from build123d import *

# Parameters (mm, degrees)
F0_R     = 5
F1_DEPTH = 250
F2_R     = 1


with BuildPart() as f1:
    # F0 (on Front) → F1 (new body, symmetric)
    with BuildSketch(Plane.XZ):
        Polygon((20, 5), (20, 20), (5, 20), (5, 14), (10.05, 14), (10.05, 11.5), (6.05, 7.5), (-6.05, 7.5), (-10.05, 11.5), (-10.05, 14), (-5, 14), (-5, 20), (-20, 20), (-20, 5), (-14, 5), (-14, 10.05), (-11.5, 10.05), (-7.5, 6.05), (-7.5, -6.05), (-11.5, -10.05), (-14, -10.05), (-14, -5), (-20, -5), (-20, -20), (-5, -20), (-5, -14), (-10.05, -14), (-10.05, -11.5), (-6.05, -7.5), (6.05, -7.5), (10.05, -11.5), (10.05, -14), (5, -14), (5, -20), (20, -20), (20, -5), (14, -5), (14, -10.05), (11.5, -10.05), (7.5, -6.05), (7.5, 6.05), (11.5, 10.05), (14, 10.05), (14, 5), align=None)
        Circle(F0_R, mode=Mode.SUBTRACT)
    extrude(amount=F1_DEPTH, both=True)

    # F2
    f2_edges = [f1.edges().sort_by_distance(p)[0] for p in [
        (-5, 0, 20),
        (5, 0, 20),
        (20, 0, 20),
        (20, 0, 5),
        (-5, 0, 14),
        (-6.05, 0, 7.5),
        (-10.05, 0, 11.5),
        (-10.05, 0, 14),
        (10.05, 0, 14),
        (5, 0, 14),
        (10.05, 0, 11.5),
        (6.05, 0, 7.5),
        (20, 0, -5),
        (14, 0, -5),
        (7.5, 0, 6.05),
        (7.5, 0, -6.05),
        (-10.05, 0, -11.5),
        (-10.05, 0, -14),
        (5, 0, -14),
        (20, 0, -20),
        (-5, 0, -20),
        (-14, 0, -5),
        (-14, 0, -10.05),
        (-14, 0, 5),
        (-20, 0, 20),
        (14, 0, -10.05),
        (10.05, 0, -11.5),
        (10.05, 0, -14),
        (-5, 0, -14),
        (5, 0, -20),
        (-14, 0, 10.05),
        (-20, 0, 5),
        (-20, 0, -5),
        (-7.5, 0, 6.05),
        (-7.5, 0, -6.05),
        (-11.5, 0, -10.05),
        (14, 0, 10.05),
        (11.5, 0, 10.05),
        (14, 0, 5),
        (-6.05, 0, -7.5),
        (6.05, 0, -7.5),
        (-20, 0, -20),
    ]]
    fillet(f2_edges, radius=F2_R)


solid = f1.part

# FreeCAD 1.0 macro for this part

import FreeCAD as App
import Part
import Sketcher
from FreeCAD import Vector
Q = App.Units.Quantity


def edges_at(feature, points):
    """Names of the edges that pass closest to the given points."""
    edges = feature.Shape.Edges
    near = lambda p: min(range(len(edges)), key=lambda i: edges[i].distToShape(Part.Vertex(*p))[0])
    return sorted({f"Edge{near(p) + 1}" for p in points})

doc = App.newDocument("Part")
body = doc.addObject("PartDesign::Body", "Body")

sketch1 = body.newObject("Sketcher::SketchObject", "Sketch")
sketch1.AttachmentSupport = (doc.getObject("XZ_Plane"), [""])
sketch1.MapMode = "FlatFace"
sketch1.addGeometry([
    Part.LineSegment(Vector(20, 5, 0), Vector(20, 20, 0)),
    Part.LineSegment(Vector(20, 20, 0), Vector(5, 20, 0)),
    Part.LineSegment(Vector(5, 20, 0), Vector(5, 14, 0)),
    Part.LineSegment(Vector(5, 14, 0), Vector(10.1, 14, 0)),
    Part.LineSegment(Vector(10.1, 14, 0), Vector(10.1, 11.5, 0)),
    Part.LineSegment(Vector(10.1, 11.5, 0), Vector(6, 7.5, 0)),
    Part.LineSegment(Vector(6, 7.5, 0), Vector(-6, 7.5, 0)),
    Part.LineSegment(Vector(-6, 7.5, 0), Vector(-10.1, 11.5, 0)),
    Part.LineSegment(Vector(-10.1, 11.5, 0), Vector(-10.1, 14, 0)),
    Part.LineSegment(Vector(-10.1, 14, 0), Vector(-5, 14, 0)),
    Part.LineSegment(Vector(-5, 14, 0), Vector(-5, 20, 0)),
    Part.LineSegment(Vector(-5, 20, 0), Vector(-20, 20, 0)),
    Part.LineSegment(Vector(-20, 20, 0), Vector(-20, 5, 0)),
    Part.LineSegment(Vector(-20, 5, 0), Vector(-14, 5, 0)),
    Part.LineSegment(Vector(-14, 5, 0), Vector(-14, 10.1, 0)),
    Part.LineSegment(Vector(-14, 10.1, 0), Vector(-11.5, 10.1, 0)),
    Part.LineSegment(Vector(-11.5, 10.1, 0), Vector(-7.5, 6, 0)),
    Part.LineSegment(Vector(-7.5, 6, 0), Vector(-7.5, -6, 0)),
    Part.LineSegment(Vector(-7.5, -6, 0), Vector(-11.5, -10.1, 0)),
    Part.LineSegment(Vector(-11.5, -10.1, 0), Vector(-14, -10.1, 0)),
    Part.LineSegment(Vector(-14, -10.1, 0), Vector(-14, -5, 0)),
    Part.LineSegment(Vector(-14, -5, 0), Vector(-20, -5, 0)),
    Part.LineSegment(Vector(-20, -5, 0), Vector(-20, -20, 0)),
    Part.LineSegment(Vector(-20, -20, 0), Vector(-5, -20, 0)),
    Part.LineSegment(Vector(-5, -20, 0), Vector(-5, -14, 0)),
    Part.LineSegment(Vector(-5, -14, 0), Vector(-10.1, -14, 0)),
    Part.LineSegment(Vector(-10.1, -14, 0), Vector(-10.1, -11.5, 0)),
    Part.LineSegment(Vector(-10.1, -11.5, 0), Vector(-6, -7.5, 0)),
    Part.LineSegment(Vector(-6, -7.5, 0), Vector(6, -7.5, 0)),
    Part.LineSegment(Vector(6, -7.5, 0), Vector(10.1, -11.5, 0)),
    Part.LineSegment(Vector(10.1, -11.5, 0), Vector(10.1, -14, 0)),
    Part.LineSegment(Vector(10.1, -14, 0), Vector(5, -14, 0)),
    Part.LineSegment(Vector(5, -14, 0), Vector(5, -20, 0)),
    Part.LineSegment(Vector(5, -20, 0), Vector(20, -20, 0)),
    Part.LineSegment(Vector(20, -20, 0), Vector(20, -5, 0)),
    Part.LineSegment(Vector(20, -5, 0), Vector(14, -5, 0)),
    Part.LineSegment(Vector(14, -5, 0), Vector(14, -10.1, 0)),
    Part.LineSegment(Vector(14, -10.1, 0), Vector(11.5, -10.1, 0)),
    Part.LineSegment(Vector(11.5, -10.1, 0), Vector(7.5, -6, 0)),
    Part.LineSegment(Vector(7.5, -6, 0), Vector(7.5, 6, 0)),
    Part.LineSegment(Vector(7.5, 6, 0), Vector(11.5, 10.1, 0)),
    Part.LineSegment(Vector(11.5, 10.1, 0), Vector(14, 10.1, 0)),
    Part.LineSegment(Vector(14, 10.1, 0), Vector(14, 5, 0)),
    Part.LineSegment(Vector(14, 5, 0), Vector(20, 5, 0)),
    Part.Circle(Vector(0, 0, 0), Vector(0, 0, 1), 5),
], False)
sketch1.addConstraint([
    Sketcher.Constraint("Coincident", 0, 2, 1, 1),
    Sketcher.Constraint("Coincident", 1, 2, 2, 1),
    Sketcher.Constraint("Coincident", 2, 2, 3, 1),
    Sketcher.Constraint("Coincident", 3, 2, 4, 1),
    Sketcher.Constraint("Coincident", 4, 2, 5, 1),
    Sketcher.Constraint("Coincident", 5, 2, 6, 1),
    Sketcher.Constraint("Coincident", 6, 2, 7, 1),
    Sketcher.Constraint("Coincident", 7, 2, 8, 1),
    Sketcher.Constraint("Coincident", 8, 2, 9, 1),
    Sketcher.Constraint("Coincident", 9, 2, 10, 1),
    Sketcher.Constraint("Coincident", 10, 2, 11, 1),
    Sketcher.Constraint("Coincident", 11, 2, 12, 1),
    Sketcher.Constraint("Coincident", 12, 2, 13, 1),
    Sketcher.Constraint("Coincident", 13, 2, 14, 1),
    Sketcher.Constraint("Coincident", 14, 2, 15, 1),
    Sketcher.Constraint("Coincident", 15, 2, 16, 1),
    Sketcher.Constraint("Coincident", 16, 2, 17, 1),
    Sketcher.Constraint("Coincident", 17, 2, 18, 1),
    Sketcher.Constraint("Coincident", 18, 2, 19, 1),
    Sketcher.Constraint("Coincident", 19, 2, 20, 1),
    Sketcher.Constraint("Coincident", 20, 2, 21, 1),
    Sketcher.Constraint("Coincident", 21, 2, 22, 1),
    Sketcher.Constraint("Coincident", 22, 2, 23, 1),
    Sketcher.Constraint("Coincident", 23, 2, 24, 1),
    Sketcher.Constraint("Coincident", 24, 2, 25, 1),
    Sketcher.Constraint("Coincident", 25, 2, 26, 1),
    Sketcher.Constraint("Coincident", 26, 2, 27, 1),
    Sketcher.Constraint("Coincident", 27, 2, 28, 1),
    Sketcher.Constraint("Coincident", 28, 2, 29, 1),
    Sketcher.Constraint("Coincident", 29, 2, 30, 1),
    Sketcher.Constraint("Coincident", 30, 2, 31, 1),
    Sketcher.Constraint("Coincident", 31, 2, 32, 1),
    Sketcher.Constraint("Coincident", 32, 2, 33, 1),
    Sketcher.Constraint("Coincident", 33, 2, 34, 1),
    Sketcher.Constraint("Coincident", 34, 2, 35, 1),
    Sketcher.Constraint("Coincident", 35, 2, 36, 1),
    Sketcher.Constraint("Coincident", 36, 2, 37, 1),
    Sketcher.Constraint("Coincident", 37, 2, 38, 1),
    Sketcher.Constraint("Coincident", 38, 2, 39, 1),
    Sketcher.Constraint("Coincident", 39, 2, 40, 1),
    Sketcher.Constraint("Coincident", 40, 2, 41, 1),
    Sketcher.Constraint("Coincident", 41, 2, 42, 1),
    Sketcher.Constraint("Coincident", 42, 2, 43, 1),
    Sketcher.Constraint("Coincident", 43, 2, 0, 1),
    Sketcher.Constraint("Vertical", 0),
    Sketcher.Constraint("Horizontal", 1),
    Sketcher.Constraint("Vertical", 2),
    Sketcher.Constraint("Horizontal", 3),
    Sketcher.Constraint("Vertical", 4),
    Sketcher.Constraint("Horizontal", 6),
    Sketcher.Constraint("Vertical", 8),
    Sketcher.Constraint("Horizontal", 9),
    Sketcher.Constraint("Vertical", 10),
    Sketcher.Constraint("Horizontal", 11),
    Sketcher.Constraint("Vertical", 12),
    Sketcher.Constraint("Horizontal", 13),
    Sketcher.Constraint("Vertical", 14),
    Sketcher.Constraint("Horizontal", 15),
    Sketcher.Constraint("Vertical", 17),
    Sketcher.Constraint("Horizontal", 19),
    Sketcher.Constraint("Vertical", 20),
    Sketcher.Constraint("Horizontal", 21),
    Sketcher.Constraint("Vertical", 22),
    Sketcher.Constraint("Horizontal", 23),
    Sketcher.Constraint("Vertical", 24),
    Sketcher.Constraint("Horizontal", 25),
    Sketcher.Constraint("Vertical", 26),
    Sketcher.Constraint("Horizontal", 28),
    Sketcher.Constraint("Vertical", 30),
    Sketcher.Constraint("Horizontal", 31),
    Sketcher.Constraint("Vertical", 32),
    Sketcher.Constraint("Horizontal", 33),
    Sketcher.Constraint("Vertical", 34),
    Sketcher.Constraint("Horizontal", 35),
    Sketcher.Constraint("Vertical", 36),
    Sketcher.Constraint("Horizontal", 37),
    Sketcher.Constraint("Vertical", 39),
    Sketcher.Constraint("Horizontal", 41),
    Sketcher.Constraint("Vertical", 42),
    Sketcher.Constraint("Horizontal", 43),
    Sketcher.Constraint("Coincident", 44, 3, -1, 1),
    Sketcher.Constraint("Symmetric", 0, 2, 22, 2, -1, 1),
    Sketcher.Constraint("Symmetric", 2, 2, 24, 2, -1, 1),
    Sketcher.Constraint("Symmetric", 4, 2, 26, 2, -1, 1),
    Sketcher.Constraint("Symmetric", 5, 2, 27, 2, -1, 1),
    Sketcher.Constraint("Symmetric", 7, 2, 29, 2, -1, 1),
    Sketcher.Constraint("Symmetric", 9, 2, 31, 2, -1, 1),
    Sketcher.Constraint("Symmetric", 11, 2, 33, 2, -1, 1),
    Sketcher.Constraint("Symmetric", 13, 2, 35, 2, -1, 1),
    Sketcher.Constraint("Symmetric", 15, 2, 37, 2, -1, 1),
    Sketcher.Constraint("Symmetric", 16, 2, 38, 2, -1, 1),
    Sketcher.Constraint("Symmetric", 18, 2, 40, 2, -1, 1),
    Sketcher.Constraint("Symmetric", 20, 2, 42, 2, -1, 1),
    Sketcher.Constraint("Symmetric", 4, 2, 7, 2, -2),
    Sketcher.Constraint("Symmetric", 2, 2, 9, 2, -2),
    Sketcher.Constraint("Symmetric", 0, 2, 11, 2, -2),
    Sketcher.Constraint("Symmetric", 20, 2, 35, 2, -2),
    Sketcher.Constraint("Symmetric", 18, 2, 37, 2, -2),
    Sketcher.Constraint("Perpendicular", 5, 7),
    Sketcher.Constraint("Parallel", 7, 16),
    Sketcher.Constraint("Perpendicular", 16, 18),
    Sketcher.Constraint("Perpendicular", 27, 29),
    Sketcher.Constraint("Perpendicular", 38, 40),
    Sketcher.Constraint("Horizontal", 17, 2, 38, 2),
    Sketcher.Constraint("Equal", 33, 0),
    Sketcher.Constraint("Equal", 43, 2),
    Sketcher.Constraint("Equal", 41, 4),
    Sketcher.Constraint("Equal", 31, 14),
    Sketcher.Constraint("Equal", 28, 17),
    Sketcher.Constraint("Equal", 7, 16),
    Sketcher.Constraint("Diameter", 44, Q("10 mm")),
    Sketcher.Constraint("DistanceX", 1, 2, 1, 1, Q("15 mm")),
    Sketcher.Constraint("DistanceX", 13, 1, 13, 2, Q("6 mm")),
    Sketcher.Constraint("DistanceX", 6, 2, 6, 1, Q("12.1 mm")),
    Sketcher.Constraint("DistanceX", 15, 1, 15, 2, Q("2.5 mm")),
    Sketcher.Constraint("DistanceX", -1, 1, 0, 2, Q("20 mm")),
    Sketcher.Constraint("DistanceX", 5, 2, 4, 2, Q("4 mm")),
])
pad1 = body.newObject("PartDesign::Pad", "Pad")
pad1.Profile = sketch1
pad1.Length = 500
pad1.Midplane = True
doc.recompute()

fillet = body.newObject("PartDesign::Fillet", "Fillet")
fillet.Base = (pad1, edges_at(pad1, [
    (-5, 0, 20),
    (5, 0, 20),
    (20, 0, 20),
    (20, 0, 5),
    (-5, 0, 14),
    (-6.05, 0, 7.5),
    (-10.05, 0, 11.5),
    (-10.05, 0, 14),
    (10.05, 0, 14),
    (5, 0, 14),
    (10.05, 0, 11.5),
    (6.05, 0, 7.5),
    (20, 0, -5),
    (14, 0, -5),
    (7.5, 0, 6.05),
    (7.5, 0, -6.05),
    (-10.05, 0, -11.5),
    (-10.05, 0, -14),
    (5, 0, -14),
    (20, 0, -20),
    (-5, 0, -20),
    (-14, 0, -5),
    (-14, 0, -10.05),
    (-14, 0, 5),
    (-20, 0, 20),
    (14, 0, -10.05),
    (10.05, 0, -11.5),
    (10.05, 0, -14),
    (-5, 0, -14),
    (5, 0, -20),
    (-14, 0, 10.05),
    (-20, 0, 5),
    (-20, 0, -5),
    (-7.5, 0, 6.05),
    (-7.5, 0, -6.05),
    (-11.5, 0, -10.05),
    (14, 0, 10.05),
    (11.5, 0, 10.05),
    (14, 0, 5),
    (-6.05, 0, -7.5),
    (6.05, 0, -7.5),
    (-20, 0, -20),
]))
fillet.Radius = 1

doc.recompute()
